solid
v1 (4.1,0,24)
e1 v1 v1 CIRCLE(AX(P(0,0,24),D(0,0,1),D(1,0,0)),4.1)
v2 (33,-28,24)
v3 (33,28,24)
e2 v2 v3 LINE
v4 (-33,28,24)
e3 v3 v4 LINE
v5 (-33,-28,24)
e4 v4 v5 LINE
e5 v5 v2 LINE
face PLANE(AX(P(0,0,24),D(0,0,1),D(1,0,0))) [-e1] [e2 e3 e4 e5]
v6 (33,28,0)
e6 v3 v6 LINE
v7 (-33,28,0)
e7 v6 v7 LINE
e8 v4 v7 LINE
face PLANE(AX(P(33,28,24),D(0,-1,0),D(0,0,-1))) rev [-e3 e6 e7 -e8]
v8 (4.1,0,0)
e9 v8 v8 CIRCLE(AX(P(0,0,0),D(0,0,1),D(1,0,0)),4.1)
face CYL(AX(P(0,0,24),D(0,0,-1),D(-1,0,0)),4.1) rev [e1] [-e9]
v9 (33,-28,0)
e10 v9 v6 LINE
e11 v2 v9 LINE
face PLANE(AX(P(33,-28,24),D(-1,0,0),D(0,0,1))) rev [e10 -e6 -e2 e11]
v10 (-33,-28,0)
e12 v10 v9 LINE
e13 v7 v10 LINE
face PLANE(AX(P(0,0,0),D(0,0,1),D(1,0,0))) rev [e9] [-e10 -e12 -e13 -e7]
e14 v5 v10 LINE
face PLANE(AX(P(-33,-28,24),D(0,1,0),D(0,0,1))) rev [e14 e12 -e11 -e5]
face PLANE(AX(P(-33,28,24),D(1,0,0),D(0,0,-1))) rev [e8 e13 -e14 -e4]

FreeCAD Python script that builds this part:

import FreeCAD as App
import Part
import Sketcher


def add_polygon(sketch, points):
    """Adds a closed chain of lines whose ends are joined by coincident constraints."""
    first, n = sketch.GeometryCount, len(points)
    for a, b in zip(points, points[1:] + points[:1]):
        sketch.addGeometry(Part.LineSegment(App.Vector(*a, 0), App.Vector(*b, 0)), False)
    for i in range(n):
        sketch.addConstraint(Sketcher.Constraint("Coincident", first + i, 2, first + (i + 1) % n, 1))

doc = App.newDocument("Part")
body = doc.addObject("PartDesign::Body", "Body")

# Sketch on XY plane
sketch1 = body.newObject("Sketcher::SketchObject", "Sketch")
sketch1.AttachmentSupport = (doc.getObject("XY_Plane"), [""])
sketch1.MapMode = "FlatFace"
add_polygon(sketch1, [(-33, 28), (-33, -28), (33, -28), (33, 28)])  # lines 0-3
sketch1.addGeometry(Part.Circle(App.Vector(0, 0, 0), App.Vector(0, 0, 1), 4.1), False)  # 4
sketch1.addConstraint(Sketcher.Constraint("Vertical", 0))
sketch1.addConstraint(Sketcher.Constraint("Horizontal", 1))
sketch1.addConstraint(Sketcher.Constraint("Vertical", 2))
sketch1.addConstraint(Sketcher.Constraint("Horizontal", 3))
sketch1.addConstraint(Sketcher.Constraint("Coincident", 4, 3, -1, 1))
sketch1.addConstraint(Sketcher.Constraint("Symmetric", 0, 2, 2, 2, -1, 1))
sketch1.addConstraint(Sketcher.Constraint("Diameter", 4, 8.2))
sketch1.addConstraint(Sketcher.Constraint("DistanceX", 1, 1, 1, 2, 66.0))
sketch1.addConstraint(Sketcher.Constraint("DistanceY", 0, 2, 0, 1, 56.0))
pad1 = body.newObject("PartDesign::Pad", "Pad")
pad1.Profile = sketch1
pad1.Length = 24

doc.recompute()
